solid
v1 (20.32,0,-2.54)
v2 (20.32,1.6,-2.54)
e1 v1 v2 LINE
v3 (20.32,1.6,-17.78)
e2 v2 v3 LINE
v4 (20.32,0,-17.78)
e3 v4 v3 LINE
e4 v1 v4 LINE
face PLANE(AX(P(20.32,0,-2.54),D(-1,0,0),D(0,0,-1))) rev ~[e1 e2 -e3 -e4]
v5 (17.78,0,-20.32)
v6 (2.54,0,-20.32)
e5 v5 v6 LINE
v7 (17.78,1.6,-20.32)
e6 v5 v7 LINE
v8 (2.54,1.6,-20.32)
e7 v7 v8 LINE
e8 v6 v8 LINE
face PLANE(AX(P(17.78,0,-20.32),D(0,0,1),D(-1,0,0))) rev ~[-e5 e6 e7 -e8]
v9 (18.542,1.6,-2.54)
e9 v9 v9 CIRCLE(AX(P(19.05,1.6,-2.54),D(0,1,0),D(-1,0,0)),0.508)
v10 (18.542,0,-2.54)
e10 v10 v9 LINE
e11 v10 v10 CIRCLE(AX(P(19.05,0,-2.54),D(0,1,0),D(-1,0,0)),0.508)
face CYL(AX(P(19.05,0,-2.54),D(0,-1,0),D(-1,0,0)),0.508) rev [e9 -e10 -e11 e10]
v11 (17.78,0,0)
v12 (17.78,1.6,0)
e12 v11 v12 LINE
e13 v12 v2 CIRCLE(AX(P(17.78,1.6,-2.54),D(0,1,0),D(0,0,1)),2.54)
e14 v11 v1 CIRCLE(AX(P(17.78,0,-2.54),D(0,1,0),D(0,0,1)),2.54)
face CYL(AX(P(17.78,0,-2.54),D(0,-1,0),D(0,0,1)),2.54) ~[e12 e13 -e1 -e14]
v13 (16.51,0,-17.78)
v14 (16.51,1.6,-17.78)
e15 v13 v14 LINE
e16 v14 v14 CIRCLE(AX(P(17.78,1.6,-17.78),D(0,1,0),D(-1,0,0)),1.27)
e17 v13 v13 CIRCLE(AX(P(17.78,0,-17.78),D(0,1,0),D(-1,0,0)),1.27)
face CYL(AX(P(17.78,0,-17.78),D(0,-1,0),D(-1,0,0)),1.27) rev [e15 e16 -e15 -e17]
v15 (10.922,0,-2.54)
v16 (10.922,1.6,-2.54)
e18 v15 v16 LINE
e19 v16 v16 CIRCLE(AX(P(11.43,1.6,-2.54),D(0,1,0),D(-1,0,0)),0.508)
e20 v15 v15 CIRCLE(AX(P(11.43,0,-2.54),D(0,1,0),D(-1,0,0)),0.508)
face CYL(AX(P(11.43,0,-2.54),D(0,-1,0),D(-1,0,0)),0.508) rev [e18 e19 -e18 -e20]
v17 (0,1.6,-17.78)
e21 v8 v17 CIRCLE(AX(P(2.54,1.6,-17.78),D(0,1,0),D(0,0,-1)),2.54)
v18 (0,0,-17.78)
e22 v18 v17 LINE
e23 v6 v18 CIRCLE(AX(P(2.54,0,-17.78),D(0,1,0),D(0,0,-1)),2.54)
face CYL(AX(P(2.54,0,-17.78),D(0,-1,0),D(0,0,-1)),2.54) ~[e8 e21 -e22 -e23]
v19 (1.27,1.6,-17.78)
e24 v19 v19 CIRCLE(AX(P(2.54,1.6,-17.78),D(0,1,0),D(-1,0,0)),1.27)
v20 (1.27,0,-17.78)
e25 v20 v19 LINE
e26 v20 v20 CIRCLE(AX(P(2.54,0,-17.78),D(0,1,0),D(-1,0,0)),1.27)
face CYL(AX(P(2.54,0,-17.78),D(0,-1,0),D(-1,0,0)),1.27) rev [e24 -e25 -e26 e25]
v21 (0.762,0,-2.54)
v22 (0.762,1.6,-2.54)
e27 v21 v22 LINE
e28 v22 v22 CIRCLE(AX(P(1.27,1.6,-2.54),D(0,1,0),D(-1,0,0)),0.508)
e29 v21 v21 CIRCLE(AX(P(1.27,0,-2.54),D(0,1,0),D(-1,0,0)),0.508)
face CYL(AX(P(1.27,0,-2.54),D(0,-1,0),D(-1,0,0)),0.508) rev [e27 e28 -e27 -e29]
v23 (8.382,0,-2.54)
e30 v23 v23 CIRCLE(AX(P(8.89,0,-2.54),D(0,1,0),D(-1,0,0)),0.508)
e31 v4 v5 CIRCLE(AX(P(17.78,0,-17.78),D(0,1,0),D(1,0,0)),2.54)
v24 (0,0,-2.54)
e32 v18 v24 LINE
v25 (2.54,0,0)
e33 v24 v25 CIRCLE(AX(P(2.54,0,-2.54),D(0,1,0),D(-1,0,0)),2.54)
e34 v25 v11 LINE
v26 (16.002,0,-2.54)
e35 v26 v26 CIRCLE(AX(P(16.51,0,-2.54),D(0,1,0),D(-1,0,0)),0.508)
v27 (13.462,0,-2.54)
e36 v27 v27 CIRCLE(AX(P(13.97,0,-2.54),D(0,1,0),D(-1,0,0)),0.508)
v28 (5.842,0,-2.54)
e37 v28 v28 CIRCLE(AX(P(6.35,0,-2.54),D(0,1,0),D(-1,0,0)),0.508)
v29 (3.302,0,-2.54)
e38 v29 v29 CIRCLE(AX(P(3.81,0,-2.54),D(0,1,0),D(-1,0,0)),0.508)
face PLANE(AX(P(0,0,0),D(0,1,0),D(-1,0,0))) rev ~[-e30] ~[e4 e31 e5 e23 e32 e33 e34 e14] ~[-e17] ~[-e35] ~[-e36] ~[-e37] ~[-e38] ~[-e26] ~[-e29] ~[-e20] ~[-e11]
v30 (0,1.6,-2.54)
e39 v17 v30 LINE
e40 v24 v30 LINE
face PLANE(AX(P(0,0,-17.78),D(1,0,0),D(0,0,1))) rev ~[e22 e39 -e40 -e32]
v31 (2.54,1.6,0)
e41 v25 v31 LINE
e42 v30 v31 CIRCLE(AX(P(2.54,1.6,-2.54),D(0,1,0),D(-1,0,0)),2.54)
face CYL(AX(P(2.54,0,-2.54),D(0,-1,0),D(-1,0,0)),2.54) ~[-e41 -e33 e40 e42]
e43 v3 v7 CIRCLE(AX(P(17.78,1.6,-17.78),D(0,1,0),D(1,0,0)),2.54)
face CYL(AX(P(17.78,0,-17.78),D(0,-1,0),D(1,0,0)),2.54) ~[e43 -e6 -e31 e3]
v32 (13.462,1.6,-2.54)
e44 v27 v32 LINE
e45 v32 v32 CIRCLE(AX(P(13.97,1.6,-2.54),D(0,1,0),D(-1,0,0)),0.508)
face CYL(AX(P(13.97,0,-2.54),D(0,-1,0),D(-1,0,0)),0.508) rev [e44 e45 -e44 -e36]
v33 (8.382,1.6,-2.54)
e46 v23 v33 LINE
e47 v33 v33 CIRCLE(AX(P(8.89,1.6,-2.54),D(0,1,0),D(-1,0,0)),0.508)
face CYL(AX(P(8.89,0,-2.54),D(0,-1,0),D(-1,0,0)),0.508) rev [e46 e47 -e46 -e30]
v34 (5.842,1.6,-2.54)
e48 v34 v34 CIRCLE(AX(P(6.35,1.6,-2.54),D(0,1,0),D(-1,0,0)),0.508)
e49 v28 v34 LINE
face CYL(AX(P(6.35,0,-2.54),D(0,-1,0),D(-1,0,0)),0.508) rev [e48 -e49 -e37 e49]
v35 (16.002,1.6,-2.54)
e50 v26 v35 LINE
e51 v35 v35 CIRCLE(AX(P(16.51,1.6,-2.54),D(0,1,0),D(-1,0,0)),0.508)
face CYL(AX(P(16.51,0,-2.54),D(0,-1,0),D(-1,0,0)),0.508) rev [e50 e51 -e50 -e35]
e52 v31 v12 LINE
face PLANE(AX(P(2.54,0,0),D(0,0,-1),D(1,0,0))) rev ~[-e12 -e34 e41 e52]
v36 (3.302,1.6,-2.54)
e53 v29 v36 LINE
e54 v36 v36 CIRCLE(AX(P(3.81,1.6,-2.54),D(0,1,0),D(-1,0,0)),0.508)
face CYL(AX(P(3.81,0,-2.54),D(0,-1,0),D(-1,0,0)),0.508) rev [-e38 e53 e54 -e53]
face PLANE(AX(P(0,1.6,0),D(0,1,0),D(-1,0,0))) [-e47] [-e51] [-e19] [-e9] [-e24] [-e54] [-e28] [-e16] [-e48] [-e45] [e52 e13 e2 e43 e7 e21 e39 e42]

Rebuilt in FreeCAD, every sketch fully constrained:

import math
import FreeCAD as App
import Part
import Sketcher
Q = App.Units.Quantity

doc = App.newDocument("Part")
params = doc.addObject("Spreadsheet::Sheet", "Params")
for row, (alias, value) in enumerate([
    ("sketch1_diameter", "0.1 in"),
    ("sketch1_radius", "0.1 in"),
    ("sketch1_diameter2", "0.04 in"),
    ("pad1_length", "0.0629921 in"),
], start=1):
    params.set(f"A{row}", alias)
    params.set(f"B{row}", "=" + value)
    params.setAlias(f"B{row}", alias)

body = doc.addObject("PartDesign::Body", "Body")

sketch1 = body.newObject("Sketcher::SketchObject", "Sketch")
sketch1.AttachmentSupport = (doc.getObject("XZ_Plane"), [""])
sketch1.MapMode = "FlatFace"
sketch1.addGeometry([
    Part.ArcOfCircle(Part.Circle(App.Vector(2.5, -2.5, 0), App.Vector(0, 0, 1), 2.5), math.radians(90), math.radians(180)),
    Part.LineSegment(App.Vector(2.5, 0, 0), App.Vector(17.8, 0, 0)),
    Part.ArcOfCircle(Part.Circle(App.Vector(17.8, -2.5, 0), App.Vector(0, 0, 1), 2.5), math.radians(0), math.radians(90)),
    Part.LineSegment(App.Vector(20.3, -2.5, 0), App.Vector(20.3, -17.8, 0)),
    Part.ArcOfCircle(Part.Circle(App.Vector(17.8, -17.8, 0), App.Vector(0, 0, 1), 2.5), math.radians(-90), math.radians(0)),
    Part.LineSegment(App.Vector(17.8, -20.3, 0), App.Vector(2.5, -20.3, 0)),
    Part.ArcOfCircle(Part.Circle(App.Vector(2.5, -17.8, 0), App.Vector(0, 0, 1), 2.5), math.radians(180), math.radians(270)),
    Part.LineSegment(App.Vector(0, -17.8, 0), App.Vector(0, -2.5, 0)),
    Part.Circle(App.Vector(17.8, -17.8, 0), App.Vector(0, 0, 1), 1.3),
    Part.Circle(App.Vector(2.5, -17.8, 0), App.Vector(0, 0, 1), 1.3),
    Part.Circle(App.Vector(19.1, -2.5, 0), App.Vector(0, 0, 1), 0.5),
    Part.Circle(App.Vector(16.5, -2.5, 0), App.Vector(0, 0, 1), 0.5),
    Part.Circle(App.Vector(14, -2.5, 0), App.Vector(0, 0, 1), 0.5),
    Part.Circle(App.Vector(11.4, -2.5, 0), App.Vector(0, 0, 1), 0.5),
    Part.Circle(App.Vector(8.9, -2.5, 0), App.Vector(0, 0, 1), 0.5),
    Part.Circle(App.Vector(6.3, -2.5, 0), App.Vector(0, 0, 1), 0.5),
    Part.Circle(App.Vector(3.8, -2.5, 0), App.Vector(0, 0, 1), 0.5),
    Part.Circle(App.Vector(1.3, -2.5, 0), App.Vector(0, 0, 1), 0.5),
], False)
sketch1.addConstraint([
    Sketcher.Constraint("Tangent", 0, 1, 1, 1),
    Sketcher.Constraint("Tangent", 1, 2, 2, 2),
    Sketcher.Constraint("Tangent", 2, 1, 3, 1),
    Sketcher.Constraint("Tangent", 3, 2, 4, 2),
    Sketcher.Constraint("Tangent", 4, 1, 5, 1),
    Sketcher.Constraint("Tangent", 5, 2, 6, 2),
    Sketcher.Constraint("Tangent", 6, 1, 7, 1),
    Sketcher.Constraint("Tangent", 7, 2, 0, 2),
    Sketcher.Constraint("Horizontal", 1),
    Sketcher.Constraint("Vertical", 3),
    Sketcher.Constraint("Horizontal", 5),
    Sketcher.Constraint("Vertical", 7),
    Sketcher.Constraint("Coincident", 8, 3, 4, 3),
    Sketcher.Constraint("Coincident", 9, 3, 6, 3),
    Sketcher.Constraint("Equal", 0, 2),
    Sketcher.Constraint("Equal", 2, 4),
    Sketcher.Constraint("Equal", 4, 6),
    Sketcher.Constraint("Equal", 8, 9),
    Sketcher.Constraint("Equal", 10, 11),
    Sketcher.Constraint("Equal", 11, 12),
    Sketcher.Constraint("Equal", 12, 13),
    Sketcher.Constraint("Equal", 13, 14),
    Sketcher.Constraint("Equal", 14, 15),
    Sketcher.Constraint("Equal", 15, 16),
    Sketcher.Constraint("Equal", 16, 17),
    Sketcher.Constraint("PointOnObject", 0, 1, -1),
    Sketcher.Constraint("PointOnObject", 6, 1, -2),
    Sketcher.Constraint("Horizontal", 2, 3, 10, 3),
    Sketcher.Constraint("Horizontal", 10, 3, 11, 3),
    Sketcher.Constraint("Horizontal", 11, 3, 12, 3),
    Sketcher.Constraint("Horizontal", 12, 3, 13, 3),
    Sketcher.Constraint("Horizontal", 13, 3, 14, 3),
    Sketcher.Constraint("Horizontal", 14, 3, 15, 3),
    Sketcher.Constraint("Horizontal", 15, 3, 16, 3),
    Sketcher.Constraint("Horizontal", 16, 3, 17, 3),
    Sketcher.Constraint("Equal", 5, 3),
    Sketcher.Constraint("Diameter", 8, Q("0.1 in")),
    Sketcher.Constraint("Radius", 0, Q("0.1 in")),
    Sketcher.Constraint("Diameter", 10, Q("0.04 in")),
    Sketcher.Constraint("DistanceX", -1, 1, 2, 1, Q("0.8 in")),
    Sketcher.Constraint("DistanceX", 11, 3, 10, 3, Q("0.1 in")),
    Sketcher.Constraint("DistanceX", 12, 3, 11, 3, Q("0.1 in")),
    Sketcher.Constraint("DistanceX", 13, 3, 12, 3, Q("0.1 in")),
    Sketcher.Constraint("DistanceX", 14, 3, 13, 3, Q("0.1 in")),
    Sketcher.Constraint("DistanceX", 15, 3, 14, 3, Q("0.1 in")),
    Sketcher.Constraint("DistanceX", 16, 3, 15, 3, Q("0.1 in")),
    Sketcher.Constraint("DistanceX", 17, 3, 16, 3, Q("0.1 in")),
    Sketcher.Constraint("DistanceX", -1, 1, 17, 3, Q("0.05 in")),
])
sketch1.setExpression("Constraints[36]", "Params.sketch1_diameter")
sketch1.setExpression("Constraints[37]", "Params.sketch1_radius")
sketch1.setExpression("Constraints[38]", "Params.sketch1_diameter2")
pad1 = body.newObject("PartDesign::Pad", "Pad")
pad1.Profile = sketch1
pad1.setExpression("Length", "Params.pad1_length")
pad1.Reversed = True

doc.recompute()
